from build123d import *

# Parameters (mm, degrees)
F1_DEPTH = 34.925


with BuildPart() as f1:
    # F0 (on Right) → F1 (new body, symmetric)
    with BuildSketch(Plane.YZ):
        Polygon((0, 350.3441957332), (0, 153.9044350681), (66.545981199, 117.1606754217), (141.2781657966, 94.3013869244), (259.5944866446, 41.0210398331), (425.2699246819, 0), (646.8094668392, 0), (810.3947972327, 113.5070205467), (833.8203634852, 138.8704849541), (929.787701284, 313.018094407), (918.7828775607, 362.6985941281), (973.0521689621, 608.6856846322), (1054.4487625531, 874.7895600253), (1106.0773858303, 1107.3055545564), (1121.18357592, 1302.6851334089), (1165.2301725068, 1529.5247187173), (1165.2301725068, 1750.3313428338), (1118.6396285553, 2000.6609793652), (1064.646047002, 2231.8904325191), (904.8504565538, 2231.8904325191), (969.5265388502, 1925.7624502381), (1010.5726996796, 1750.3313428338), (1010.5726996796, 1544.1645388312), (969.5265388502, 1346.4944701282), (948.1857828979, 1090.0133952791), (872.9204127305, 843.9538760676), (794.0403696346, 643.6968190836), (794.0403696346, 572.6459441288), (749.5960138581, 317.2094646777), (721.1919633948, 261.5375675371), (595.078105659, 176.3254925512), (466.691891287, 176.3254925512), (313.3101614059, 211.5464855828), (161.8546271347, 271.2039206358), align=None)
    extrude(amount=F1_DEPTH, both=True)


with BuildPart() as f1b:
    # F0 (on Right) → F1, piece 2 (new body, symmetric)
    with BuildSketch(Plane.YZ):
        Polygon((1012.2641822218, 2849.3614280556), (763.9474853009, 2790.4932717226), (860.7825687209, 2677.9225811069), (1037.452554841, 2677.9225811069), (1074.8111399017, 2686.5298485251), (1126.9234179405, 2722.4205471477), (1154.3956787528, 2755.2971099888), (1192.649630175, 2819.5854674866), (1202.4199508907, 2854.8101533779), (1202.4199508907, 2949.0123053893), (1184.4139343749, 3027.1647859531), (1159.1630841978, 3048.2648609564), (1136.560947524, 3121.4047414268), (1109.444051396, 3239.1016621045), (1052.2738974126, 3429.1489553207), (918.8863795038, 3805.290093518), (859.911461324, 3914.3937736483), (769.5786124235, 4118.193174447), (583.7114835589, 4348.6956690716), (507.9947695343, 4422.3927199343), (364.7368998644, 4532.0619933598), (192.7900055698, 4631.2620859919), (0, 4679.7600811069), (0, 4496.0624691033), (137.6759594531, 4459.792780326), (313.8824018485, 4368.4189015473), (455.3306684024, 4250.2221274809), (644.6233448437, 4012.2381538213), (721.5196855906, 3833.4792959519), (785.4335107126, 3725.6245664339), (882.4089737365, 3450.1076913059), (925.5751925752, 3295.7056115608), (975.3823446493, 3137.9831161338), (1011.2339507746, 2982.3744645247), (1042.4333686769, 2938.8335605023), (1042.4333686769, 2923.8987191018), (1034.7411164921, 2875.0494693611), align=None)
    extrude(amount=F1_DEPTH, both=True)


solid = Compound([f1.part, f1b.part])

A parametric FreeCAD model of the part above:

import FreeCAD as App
import Part
import Sketcher
from FreeCAD import Vector
Q = App.Units.Quantity

doc = App.newDocument("Part")
body = doc.addObject("PartDesign::Body", "Body")

# Sketch on YZ plane
sketch1 = doc.addObject("Sketcher::SketchObject", "Sketch")
body.addObject(sketch1)
sketch1.AttachmentSupport = (doc.YZ_Plane, [""])
sketch1.MapMode = "FlatFace"
sketch1.addGeometry([
    Part.LineSegment(Vector(0, 350.344196, 0), Vector(0, 153.904435, 0)),  # 0
    Part.LineSegment(Vector(0, 153.904435, 0), Vector(66.545981, 117.160675, 0)),  # 1
    Part.LineSegment(Vector(66.545981, 117.160675, 0), Vector(141.278166, 94.301387, 0)),  # 2
    Part.LineSegment(Vector(141.278166, 94.301387, 0), Vector(259.594487, 41.02104, 0)),  # 3
    Part.LineSegment(Vector(259.594487, 41.02104, 0), Vector(425.269925, 0, 0)),  # 4
    Part.LineSegment(Vector(425.269925, 0, 0), Vector(646.809467, 0, 0)),  # 5
    Part.LineSegment(Vector(646.809467, 0, 0), Vector(810.394797, 113.507021, 0)),  # 6
    Part.LineSegment(Vector(810.394797, 113.507021, 0), Vector(833.820363, 138.870485, 0)),  # 7
    Part.LineSegment(Vector(833.820363, 138.870485, 0), Vector(929.787701, 313.018094, 0)),  # 8
    Part.LineSegment(Vector(929.787701, 313.018094, 0), Vector(918.782878, 362.698594, 0)),  # 9
    Part.LineSegment(Vector(918.782878, 362.698594, 0), Vector(973.052169, 608.685685, 0)),  # 10
    Part.LineSegment(Vector(973.052169, 608.685685, 0), Vector(1054.448763, 874.78956, 0)),  # 11
    Part.LineSegment(Vector(1054.448763, 874.78956, 0), Vector(1106.077386, 1107.305555, 0)),  # 12
    Part.LineSegment(Vector(1106.077386, 1107.305555, 0), Vector(1121.183576, 1302.685133, 0)),  # 13
    Part.LineSegment(Vector(1121.183576, 1302.685133, 0), Vector(1165.230173, 1529.524719, 0)),  # 14
    Part.LineSegment(Vector(1165.230173, 1529.524719, 0), Vector(1165.230173, 1750.331343, 0)),  # 15
    Part.LineSegment(Vector(1165.230173, 1750.331343, 0), Vector(1118.639629, 2000.660979, 0)),  # 16
    Part.LineSegment(Vector(1118.639629, 2000.660979, 0), Vector(1064.646047, 2231.890433, 0)),  # 17
    Part.LineSegment(Vector(1064.646047, 2231.890433, 0), Vector(904.850457, 2231.890433, 0)),  # 18
    Part.LineSegment(Vector(904.850457, 2231.890433, 0), Vector(969.526539, 1925.76245, 0)),  # 19
    Part.LineSegment(Vector(969.526539, 1925.76245, 0), Vector(1010.5727, 1750.331343, 0)),  # 20
    Part.LineSegment(Vector(1010.5727, 1750.331343, 0), Vector(1010.5727, 1544.164539, 0)),  # 21
    Part.LineSegment(Vector(1010.5727, 1544.164539, 0), Vector(969.526539, 1346.49447, 0)),  # 22
    Part.LineSegment(Vector(969.526539, 1346.49447, 0), Vector(948.185783, 1090.013395, 0)),  # 23
    Part.LineSegment(Vector(948.185783, 1090.013395, 0), Vector(872.920413, 843.953876, 0)),  # 24
    Part.LineSegment(Vector(872.920413, 843.953876, 0), Vector(794.04037, 643.696819, 0)),  # 25
    Part.LineSegment(Vector(794.04037, 643.696819, 0), Vector(794.04037, 572.645944, 0)),  # 26
    Part.LineSegment(Vector(794.04037, 572.645944, 0), Vector(749.596014, 317.209465, 0)),  # 27
    Part.LineSegment(Vector(749.596014, 317.209465, 0), Vector(721.191963, 261.537568, 0)),  # 28
    Part.LineSegment(Vector(721.191963, 261.537568, 0), Vector(595.078106, 176.325493, 0)),  # 29
    Part.LineSegment(Vector(595.078106, 176.325493, 0), Vector(466.691891, 176.325493, 0)),  # 30
    Part.LineSegment(Vector(466.691891, 176.325493, 0), Vector(313.310161, 211.546486, 0)),  # 31
    Part.LineSegment(Vector(313.310161, 211.546486, 0), Vector(161.854627, 271.203921, 0)),  # 32
    Part.LineSegment(Vector(161.854627, 271.203921, 0), Vector(0, 350.344196, 0)),  # 33
], False)
sketch1.addConstraint([
    Sketcher.Constraint("Coincident", 0, 2, 1, 1),
    Sketcher.Constraint("Coincident", 1, 2, 2, 1),
    Sketcher.Constraint("Coincident", 2, 2, 3, 1),
    Sketcher.Constraint("Coincident", 3, 2, 4, 1),
    Sketcher.Constraint("Coincident", 4, 2, 5, 1),
    Sketcher.Constraint("Coincident", 5, 2, 6, 1),
    Sketcher.Constraint("Coincident", 6, 2, 7, 1),
    Sketcher.Constraint("Coincident", 7, 2, 8, 1),
    Sketcher.Constraint("Coincident", 8, 2, 9, 1),
    Sketcher.Constraint("Coincident", 9, 2, 10, 1),
    Sketcher.Constraint("Coincident", 10, 2, 11, 1),
    Sketcher.Constraint("Coincident", 11, 2, 12, 1),
    Sketcher.Constraint("Coincident", 12, 2, 13, 1),
    Sketcher.Constraint("Coincident", 13, 2, 14, 1),
    Sketcher.Constraint("Coincident", 14, 2, 15, 1),
    Sketcher.Constraint("Coincident", 15, 2, 16, 1),
    Sketcher.Constraint("Coincident", 16, 2, 17, 1),
    Sketcher.Constraint("Coincident", 17, 2, 18, 1),
    Sketcher.Constraint("Coincident", 18, 2, 19, 1),
    Sketcher.Constraint("Coincident", 19, 2, 20, 1),
    Sketcher.Constraint("Coincident", 20, 2, 21, 1),
    Sketcher.Constraint("Coincident", 21, 2, 22, 1),
    Sketcher.Constraint("Coincident", 22, 2, 23, 1),
    Sketcher.Constraint("Coincident", 23, 2, 24, 1),
    Sketcher.Constraint("Coincident", 24, 2, 25, 1),
    Sketcher.Constraint("Coincident", 25, 2, 26, 1),
    Sketcher.Constraint("Coincident", 26, 2, 27, 1),
    Sketcher.Constraint("Coincident", 27, 2, 28, 1),
    Sketcher.Constraint("Coincident", 28, 2, 29, 1),
    Sketcher.Constraint("Coincident", 29, 2, 30, 1),
    Sketcher.Constraint("Coincident", 30, 2, 31, 1),
    Sketcher.Constraint("Coincident", 31, 2, 32, 1),
    Sketcher.Constraint("Coincident", 32, 2, 33, 1),
    Sketcher.Constraint("Coincident", 33, 2, 0, 1),
    Sketcher.Constraint("Vertical", 0),
    Sketcher.Constraint("Horizontal", 5),
    Sketcher.Constraint("Vertical", 15),
    Sketcher.Constraint("Horizontal", 18),
    Sketcher.Constraint("Vertical", 21),
    Sketcher.Constraint("Vertical", 26),
    Sketcher.Constraint("Horizontal", 30),
    Sketcher.Constraint("PointOnObject", 0, 2, -2),
    Sketcher.Constraint("PointOnObject", 4, 2, -1),
    Sketcher.Constraint("DistanceX", 27, 2, 9, 2, Q("6.6609001 in")),
    Sketcher.Constraint("Distance", 19, Q("312.885502 mm")),
    Sketcher.Constraint("Distance", 28, Q("62.499202 mm")),
    Sketcher.Constraint("DistanceX", 18, 2, 18, 1, Q("159.79559 mm")),
    Sketcher.Constraint("DistanceY", 0, 2, 0, 1, Q("196.439761 mm")),
    Sketcher.Constraint("DistanceX", -1, 1, 8, 2, Q("929.787701 mm")),
    Sketcher.Constraint("DistanceX", -1, 1, 20, 2, Q("1010.5727 mm")),
    Sketcher.Constraint("DistanceX", 2, 2, 5, 2, Q("505.531301 mm")),
    Sketcher.Constraint("DistanceY", 2, 2, 7, 2, Q("44.569098 mm")),
    Sketcher.Constraint("DistanceY", 8, 2, 9, 2, Q("49.6805 mm")),
    Sketcher.Constraint("DistanceY", 7, 2, 10, 2, Q("469.8152 mm")),
    Sketcher.Constraint("DistanceX", 7, 2, 11, 2, Q("220.628399 mm")),
    Sketcher.Constraint("DistanceX", 9, 2, 13, 2, Q("202.400698 mm")),
    Sketcher.Constraint("DistanceY", 13, 2, 17, 2, Q("929.205299 mm")),
    Sketcher.Constraint("DistanceX", 25, 2, 10, 2, Q("179.011799 mm")),
    Sketcher.Constraint("DistanceX", 28, 2, 7, 2, Q("112.6284 mm")),
    Sketcher.Constraint("DistanceY", 2, 2, 31, 2, Q("117.245099 mm")),
    Sketcher.Constraint("Distance", 1, Q("76.016258 mm")),
    Sketcher.Constraint("Distance", 6, Q("199.108021 mm")),
    Sketcher.Constraint("Distance", 10, Q("251.902371 mm")),
    Sketcher.Constraint("Distance", 12, Q("238.178929 mm")),
    Sketcher.Constraint("Distance", 20, Q("180.168978 mm")),
    Sketcher.Constraint("Distance", 22, Q("201.886709 mm")),
    Sketcher.Constraint("Distance", 27, Q("259.274171 mm")),
    Sketcher.Constraint("DistanceX", 5, 1, 5, 2, Q("221.539542 mm")),
    Sketcher.Constraint("DistanceX", 30, 2, 30, 1, Q("128.386214 mm")),
    Sketcher.Constraint("DistanceY", 15, 1, 15, 2, Q("220.806624 mm")),
    Sketcher.Constraint("DistanceY", 21, 2, 21, 1, Q("206.166804 mm")),
    Sketcher.Constraint("DistanceY", 26, 2, 26, 1, Q("71.050875 mm")),
    Sketcher.Constraint("DistanceX", -1, 1, 1, 2, Q("66.545981 mm")),
    Sketcher.Constraint("DistanceY", -1, 1, 3, 2, Q("41.02104 mm")),
    Sketcher.Constraint("DistanceY", -1, 1, 6, 2, Q("113.507021 mm")),
    Sketcher.Constraint("DistanceX", -1, 1, 10, 2, Q("973.052169 mm")),
    Sketcher.Constraint("DistanceY", -1, 1, 11, 2, Q("874.78956 mm")),
    Sketcher.Constraint("DistanceY", -1, 1, 14, 2, Q("1529.524719 mm")),
    Sketcher.Constraint("DistanceX", -1, 1, 16, 2, Q("1118.639629 mm")),
    Sketcher.Constraint("DistanceY", -1, 1, 16, 2, Q("2000.660979 mm")),
    Sketcher.Constraint("DistanceX", -1, 1, 19, 2, Q("969.526539 mm")),
    Sketcher.Constraint("DistanceY", -1, 1, 19, 2, Q("1925.76245 mm")),
    Sketcher.Constraint("DistanceX", -1, 1, 22, 2, Q("969.526539 mm")),
    Sketcher.Constraint("DistanceY", -1, 1, 25, 2, Q("643.696819 mm")),
    Sketcher.Constraint("DistanceX", -1, 1, 30, 2, Q("466.691891 mm")),
    Sketcher.Constraint("DistanceX", -1, 1, 31, 2, Q("313.310161 mm")),
    Sketcher.Constraint("DistanceY", -1, 1, 32, 2, Q("271.203921 mm")),
    Sketcher.Constraint("DistanceY", 2, 2, 1, 2, Q("22.859288 mm")),
    Sketcher.Constraint("DistanceX", 2, 2, 3, 2, Q("118.316321 mm")),
    Sketcher.Constraint("DistanceX", 4, 2, 7, 2, Q("408.550439 mm")),
    Sketcher.Constraint("DistanceY", 7, 2, 8, 2, Q("174.147609 mm")),
    Sketcher.Constraint("DistanceX", 6, 2, 9, 2, Q("108.38808 mm")),
    Sketcher.Constraint("DistanceY", 10, 2, 12, 2, Q("498.61987 mm")),
    Sketcher.Constraint("DistanceX", 9, 2, 12, 2, Q("187.294508 mm")),
    Sketcher.Constraint("DistanceY", 12, 2, 13, 2, Q("195.379579 mm")),
    Sketcher.Constraint("DistanceX", 11, 2, 14, 2, Q("110.78141 mm")),
    Sketcher.Constraint("DistanceY", 23, 2, 12, 2, Q("17.292159 mm")),
    Sketcher.Constraint("DistanceX", 23, 2, 11, 2, Q("106.26298 mm")),
    Sketcher.Constraint("DistanceX", 24, 2, 11, 2, Q("181.52835 mm")),
    Sketcher.Constraint("DistanceY", 10, 2, 24, 2, Q("235.268191 mm")),
    Sketcher.Constraint("DistanceX", 2, 2, 32, 2, Q("20.576461 mm")),
    Sketcher.Constraint("Distance", 29, Q("152.203163 mm")),
])
pad1 = doc.addObject("PartDesign::Pad", "Pad")
body.addObject(pad1)
pad1.Profile = sketch1
pad1.Length = Q("2.75 in")
pad1.Midplane = True
body2 = doc.addObject("PartDesign::Body", "Body001")

# Sketch on YZ plane
sketch2 = doc.addObject("Sketcher::SketchObject", "Sketch001")
body2.addObject(sketch2)
sketch2.AttachmentSupport = (doc.getObject("YZ_Plane001"), [""])
sketch2.MapMode = "FlatFace"
sketch2.addGeometry([
    Part.LineSegment(Vector(1012, 2849, 0), Vector(764, 2790, 0)),  # 0
    Part.LineSegment(Vector(764, 2790, 0), Vector(861, 2678, 0)),  # 1
    Part.LineSegment(Vector(861, 2678, 0), Vector(1037, 2678, 0)),  # 2
    Part.LineSegment(Vector(1037, 2678, 0), Vector(1075, 2687, 0)),  # 3
    Part.LineSegment(Vector(1075, 2687, 0), Vector(1127, 2722, 0)),  # 4
    Part.LineSegment(Vector(1127, 2722, 0), Vector(1154, 2755, 0)),  # 5
    Part.LineSegment(Vector(1154, 2755, 0), Vector(1193, 2820, 0)),  # 6
    Part.LineSegment(Vector(1193, 2820, 0), Vector(1202, 2855, 0)),  # 7
    Part.LineSegment(Vector(1202, 2855, 0), Vector(1202, 2949, 0)),  # 8
    Part.LineSegment(Vector(1202, 2949, 0), Vector(1184, 3027, 0)),  # 9
    Part.LineSegment(Vector(1184, 3027, 0), Vector(1159, 3048, 0)),  # 10
    Part.LineSegment(Vector(1159, 3048, 0), Vector(1137, 3121, 0)),  # 11
    Part.LineSegment(Vector(1137, 3121, 0), Vector(1109, 3239, 0)),  # 12
    Part.LineSegment(Vector(1109, 3239, 0), Vector(1052, 3429, 0)),  # 13
    Part.LineSegment(Vector(1052, 3429, 0), Vector(919, 3805, 0)),  # 14
    Part.LineSegment(Vector(919, 3805, 0), Vector(860, 3914, 0)),  # 15
    Part.LineSegment(Vector(860, 3914, 0), Vector(770, 4118, 0)),  # 16
    Part.LineSegment(Vector(770, 4118, 0), Vector(584, 4349, 0)),  # 17
    Part.LineSegment(Vector(584, 4349, 0), Vector(508, 4422, 0)),  # 18
    Part.LineSegment(Vector(508, 4422, 0), Vector(365, 4532, 0)),  # 19
    Part.LineSegment(Vector(365, 4532, 0), Vector(193, 4631, 0)),  # 20
    Part.LineSegment(Vector(193, 4631, 0), Vector(0, 4680, 0)),  # 21
    Part.LineSegment(Vector(0, 4680, 0), Vector(0, 4496, 0)),  # 22
    Part.LineSegment(Vector(0, 4496, 0), Vector(138, 4460, 0)),  # 23
    Part.LineSegment(Vector(138, 4460, 0), Vector(314, 4368, 0)),  # 24
    Part.LineSegment(Vector(314, 4368, 0), Vector(455, 4250, 0)),  # 25
    Part.LineSegment(Vector(455, 4250, 0), Vector(645, 4012, 0)),  # 26
    Part.LineSegment(Vector(645, 4012, 0), Vector(722, 3833, 0)),  # 27
    Part.LineSegment(Vector(722, 3833, 0), Vector(785, 3726, 0)),  # 28
    Part.LineSegment(Vector(785, 3726, 0), Vector(882, 3450, 0)),  # 29
    Part.LineSegment(Vector(882, 3450, 0), Vector(926, 3296, 0)),  # 30
    Part.LineSegment(Vector(926, 3296, 0), Vector(975, 3138, 0)),  # 31
    Part.LineSegment(Vector(975, 3138, 0), Vector(1011, 2982, 0)),  # 32
    Part.LineSegment(Vector(1011, 2982, 0), Vector(1042, 2939, 0)),  # 33
    Part.LineSegment(Vector(1042, 2939, 0), Vector(1042, 2924, 0)),  # 34
    Part.LineSegment(Vector(1042, 2924, 0), Vector(1035, 2875, 0)),  # 35
    Part.LineSegment(Vector(1035, 2875, 0), Vector(1012, 2849, 0)),  # 36
], False)
sketch2.addConstraint([
    Sketcher.Constraint("Coincident", 0, 2, 1, 1),
    Sketcher.Constraint("Coincident", 1, 2, 2, 1),
    Sketcher.Constraint("Coincident", 2, 2, 3, 1),
    Sketcher.Constraint("Coincident", 3, 2, 4, 1),
    Sketcher.Constraint("Coincident", 4, 2, 5, 1),
    Sketcher.Constraint("Coincident", 5, 2, 6, 1),
    Sketcher.Constraint("Coincident", 6, 2, 7, 1),
    Sketcher.Constraint("Coincident", 7, 2, 8, 1),
    Sketcher.Constraint("Coincident", 8, 2, 9, 1),
    Sketcher.Constraint("Coincident", 9, 2, 10, 1),
    Sketcher.Constraint("Coincident", 10, 2, 11, 1),
    Sketcher.Constraint("Coincident", 11, 2, 12, 1),
    Sketcher.Constraint("Coincident", 12, 2, 13, 1),
    Sketcher.Constraint("Coincident", 13, 2, 14, 1),
    Sketcher.Constraint("Coincident", 14, 2, 15, 1),
    Sketcher.Constraint("Coincident", 15, 2, 16, 1),
    Sketcher.Constraint("Coincident", 16, 2, 17, 1),
    Sketcher.Constraint("Coincident", 17, 2, 18, 1),
    Sketcher.Constraint("Coincident", 18, 2, 19, 1),
    Sketcher.Constraint("Coincident", 19, 2, 20, 1),
    Sketcher.Constraint("Coincident", 20, 2, 21, 1),
    Sketcher.Constraint("Coincident", 21, 2, 22, 1),
    Sketcher.Constraint("Coincident", 22, 2, 23, 1),
    Sketcher.Constraint("Coincident", 23, 2, 24, 1),
    Sketcher.Constraint("Coincident", 24, 2, 25, 1),
    Sketcher.Constraint("Coincident", 25, 2, 26, 1),
    Sketcher.Constraint("Coincident", 26, 2, 27, 1),
    Sketcher.Constraint("Coincident", 27, 2, 28, 1),
    Sketcher.Constraint("Coincident", 28, 2, 29, 1),
    Sketcher.Constraint("Coincident", 29, 2, 30, 1),
    Sketcher.Constraint("Coincident", 30, 2, 31, 1),
    Sketcher.Constraint("Coincident", 31, 2, 32, 1),
    Sketcher.Constraint("Coincident", 32, 2, 33, 1),
    Sketcher.Constraint("Coincident", 33, 2, 34, 1),
    Sketcher.Constraint("Coincident", 34, 2, 35, 1),
    Sketcher.Constraint("Coincident", 35, 2, 36, 1),
    Sketcher.Constraint("Coincident", 36, 2, 0, 1),
    Sketcher.Constraint("Horizontal", 2),
    Sketcher.Constraint("Vertical", 8),
    Sketcher.Constraint("Vertical", 22),
    Sketcher.Constraint("Vertical", 34),
    Sketcher.Constraint("PointOnObject", 21, 2, -2),
    Sketcher.Constraint("Perpendicular", 3, 9),
    Sketcher.Constraint("Perpendicular", 5, 10),
    Sketcher.Constraint("Parallel", 9, 12),
    Sketcher.Constraint("Parallel", 10, 25),
    Sketcher.Constraint("Parallel", 12, 32),
    Sketcher.Constraint("DistanceY", 15, 2, 17, 2, Q("17.0984998 in")),
    Sketcher.Constraint("DistanceY", 34, 2, 34, 1, Q("14.934841 mm")),
    Sketcher.Constraint("DistanceX", -1, 1, 19, 2, Q("364.7369 mm")),
    Sketcher.Constraint("DistanceX", -1, 1, 24, 2, Q("313.882402 mm")),
    Sketcher.Constraint("DistanceY", -1, 1, 24, 2, Q("4368.418902 mm")),
    Sketcher.Constraint("DistanceY", 3, 2, 4, 2, Q("35.890699 mm")),
    Sketcher.Constraint("DistanceY", 10, 2, 12, 2, Q("190.836801 mm")),
    Sketcher.Constraint("DistanceX", 12, 2, 8, 2, Q("92.975899 mm")),
    Sketcher.Constraint("DistanceY", 15, 2, 16, 2, Q("203.799401 mm")),
    Sketcher.Constraint("DistanceY", 14, 2, 19, 2, Q("726.7719 mm")),
    Sketcher.Constraint("DistanceY", 17, 2, 22, 2, Q("147.3668 mm")),
    Sketcher.Constraint("DistanceY", 23, 2, 21, 2, Q("219.967301 mm")),
    Sketcher.Constraint("DistanceX", 25, 2, 18, 2, Q("52.664101 mm")),
    Sketcher.Constraint("DistanceX", 16, 2, 28, 2, Q("15.854898 mm")),
    Sketcher.Constraint("DistanceX", 32, 2, 8, 2, Q("191.186 mm")),
    Sketcher.Constraint("DistanceY", 33, 2, 10, 2, Q("109.4313 mm")),
    Sketcher.Constraint("DistanceY", 6, 2, 35, 2, Q("55.464002 mm")),
    Sketcher.Constraint("Distance", 0, Q("255.19922 mm")),
    Sketcher.Constraint("Distance", 1, Q("148.489709 mm")),
    Sketcher.Constraint("Distance", 4, Q("63.275839 mm")),
    Sketcher.Constraint("Distance", 9, Q("80.199918 mm")),
    Sketcher.Constraint("Distance", 10, Q("32.906209 mm")),
    Sketcher.Constraint("Distance", 13, Q("198.460072 mm")),
    Sketcher.Constraint("Distance", 14, Q("399.091952 mm")),
    Sketcher.Constraint("Distance", 18, Q("105.661138 mm")),
    Sketcher.Constraint("Distance", 26, Q("304.085661 mm")),
    Sketcher.Constraint("Distance", 28, Q("125.369931 mm")),
    Sketcher.Constraint("DistanceX", 2, 1, 2, 2, Q("176.669986 mm")),
    Sketcher.Constraint("DistanceY", 8, 1, 8, 2, Q("94.202152 mm")),
    Sketcher.Constraint("DistanceY", 22, 2, 22, 1, Q("183.697612 mm")),
    Sketcher.Constraint("DistanceY", -1, 1, 0, 2, Q("2790.493272 mm")),
    Sketcher.Constraint("DistanceX", -1, 1, 1, 2, Q("860.782569 mm")),
    Sketcher.Constraint("DistanceY", -1, 1, 1, 2, Q("2677.922581 mm")),
    Sketcher.Constraint("DistanceX", -1, 1, 3, 2, Q("1074.81114 mm")),
    Sketcher.Constraint("DistanceY", -1, 1, 3, 2, Q("2686.529849 mm")),
    Sketcher.Constraint("DistanceX", -1, 1, 5, 2, Q("1154.395679 mm")),
    Sketcher.Constraint("DistanceY", -1, 1, 5, 2, Q("2755.29711 mm")),
    Sketcher.Constraint("DistanceX", -1, 1, 6, 2, Q("1192.64963 mm")),
    Sketcher.Constraint("DistanceX", -1, 1, 7, 2, Q("1202.419951 mm")),
    Sketcher.Constraint("DistanceY", -1, 1, 10, 2, Q("3048.264861 mm")),
    Sketcher.Constraint("DistanceY", -1, 1, 11, 2, Q("3121.404741 mm")),
    Sketcher.Constraint("DistanceX", -1, 1, 14, 2, Q("918.88638 mm")),
    Sketcher.Constraint("DistanceX", -1, 1, 15, 2, Q("859.911461 mm")),
    Sketcher.Constraint("DistanceY", -1, 1, 17, 2, Q("4348.695669 mm")),
    Sketcher.Constraint("DistanceX", -1, 1, 18, 2, Q("507.99477 mm")),
    Sketcher.Constraint("DistanceY", -1, 1, 18, 2, Q("4422.39272 mm")),
    Sketcher.Constraint("DistanceX", -1, 1, 23, 2, Q("137.675959 mm")),
    Sketcher.Constraint("DistanceX", -1, 1, 28, 2, Q("785.433511 mm")),
    Sketcher.Constraint("DistanceY", -1, 1, 29, 2, Q("3450.107691 mm")),
    Sketcher.Constraint("DistanceY", -1, 1, 30, 2, Q("3295.705612 mm")),
    Sketcher.Constraint("DistanceX", -1, 1, 33, 2, Q("1042.433369 mm")),
    Sketcher.Constraint("DistanceY", -1, 1, 35, 2, Q("2875.049469 mm")),
    Sketcher.Constraint("DistanceY", -1, 1, 36, 2, Q("2849.361428 mm")),
    Sketcher.Constraint("DistanceX", 13, 2, 11, 2, Q("84.28705 mm")),
    Sketcher.Constraint("DistanceY", 16, 2, 20, 2, Q("513.068912 mm")),
    Sketcher.Constraint("DistanceY", 26, 2, 16, 2, Q("105.955021 mm")),
    Sketcher.Constraint("DistanceX", 26, 2, 27, 2, Q("76.896341 mm")),
    Sketcher.Constraint("DistanceY", 27, 2, 16, 2, Q("284.713878 mm")),
    Sketcher.Constraint("DistanceX", 29, 2, 30, 2, Q("43.166219 mm")),
    Sketcher.Constraint("DistanceX", 30, 2, 12, 2, Q("183.868859 mm")),
    Sketcher.Constraint("DistanceX", 31, 2, 10, 2, Q("183.78074 mm")),
    Sketcher.Constraint("DistanceY", 9, 2, 31, 2, Q("110.81833 mm")),
    Sketcher.Constraint("Distance", 20, Q("198.510435 mm")),
    Sketcher.Constraint("Distance", 35, Q("49.451187 mm")),
])
pad2 = doc.addObject("PartDesign::Pad", "Pad001")
body2.addObject(pad2)
pad2.Profile = sketch2
pad2.Length = Q("2.75 in")
pad2.Midplane = True

doc.recompute()
